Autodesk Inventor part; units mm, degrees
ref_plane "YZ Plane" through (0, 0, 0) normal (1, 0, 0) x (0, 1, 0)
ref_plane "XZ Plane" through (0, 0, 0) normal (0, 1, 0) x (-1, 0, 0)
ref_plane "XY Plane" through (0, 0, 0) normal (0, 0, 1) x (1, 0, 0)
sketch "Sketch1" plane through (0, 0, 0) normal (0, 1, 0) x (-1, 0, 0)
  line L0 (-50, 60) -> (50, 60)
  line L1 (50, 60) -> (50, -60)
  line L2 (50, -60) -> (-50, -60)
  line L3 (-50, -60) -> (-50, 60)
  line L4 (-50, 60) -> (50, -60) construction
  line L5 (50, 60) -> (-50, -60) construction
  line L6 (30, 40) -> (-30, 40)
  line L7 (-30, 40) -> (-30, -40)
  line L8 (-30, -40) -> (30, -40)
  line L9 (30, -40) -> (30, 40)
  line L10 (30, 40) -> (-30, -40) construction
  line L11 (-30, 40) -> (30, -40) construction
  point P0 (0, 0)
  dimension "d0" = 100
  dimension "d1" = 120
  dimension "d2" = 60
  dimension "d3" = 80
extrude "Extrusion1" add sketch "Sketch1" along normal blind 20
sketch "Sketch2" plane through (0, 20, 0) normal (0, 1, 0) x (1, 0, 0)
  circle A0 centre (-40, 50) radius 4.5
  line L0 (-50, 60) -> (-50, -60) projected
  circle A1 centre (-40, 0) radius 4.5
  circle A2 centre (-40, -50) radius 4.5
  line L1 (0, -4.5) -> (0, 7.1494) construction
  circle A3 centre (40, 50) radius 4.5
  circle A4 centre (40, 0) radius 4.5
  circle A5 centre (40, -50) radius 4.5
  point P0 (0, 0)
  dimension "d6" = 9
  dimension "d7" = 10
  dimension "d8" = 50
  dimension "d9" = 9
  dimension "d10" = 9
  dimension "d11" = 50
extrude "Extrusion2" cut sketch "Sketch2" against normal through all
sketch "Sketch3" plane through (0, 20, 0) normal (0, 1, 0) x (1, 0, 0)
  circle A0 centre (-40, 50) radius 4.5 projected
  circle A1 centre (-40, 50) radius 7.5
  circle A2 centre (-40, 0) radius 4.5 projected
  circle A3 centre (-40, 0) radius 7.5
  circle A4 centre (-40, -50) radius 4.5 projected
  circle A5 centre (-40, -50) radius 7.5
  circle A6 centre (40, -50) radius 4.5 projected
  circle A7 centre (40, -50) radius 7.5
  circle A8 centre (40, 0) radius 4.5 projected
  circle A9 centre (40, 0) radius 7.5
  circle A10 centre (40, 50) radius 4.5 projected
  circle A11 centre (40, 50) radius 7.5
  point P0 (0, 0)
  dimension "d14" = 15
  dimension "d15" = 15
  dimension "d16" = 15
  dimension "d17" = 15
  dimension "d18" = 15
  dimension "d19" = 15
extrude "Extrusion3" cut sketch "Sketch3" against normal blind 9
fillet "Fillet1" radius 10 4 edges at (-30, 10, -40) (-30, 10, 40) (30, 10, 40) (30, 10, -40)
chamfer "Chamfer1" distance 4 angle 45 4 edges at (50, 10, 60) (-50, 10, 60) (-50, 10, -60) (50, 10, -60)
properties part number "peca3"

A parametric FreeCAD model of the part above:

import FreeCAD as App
import Part
import Sketcher
from FreeCAD import Vector
Q = App.Units.Quantity


def edges_at(feature, points):
    """Names of the edges that pass closest to the given points."""
    edges = feature.Shape.Edges
    near = lambda p: min(range(len(edges)), key=lambda i: edges[i].distToShape(Part.Vertex(*p))[0])
    return sorted({f"Edge{near(p) + 1}" for p in points})


def add_polygon(sketch, points):
    """Adds a closed chain of lines whose ends are joined by coincident constraints."""
    first, n = sketch.GeometryCount, len(points)
    for a, b in zip(points, points[1:] + points[:1]):
        sketch.addGeometry(Part.LineSegment(App.Vector(*a, 0), App.Vector(*b, 0)), False)
    for i in range(n):
        sketch.addConstraint(Sketcher.Constraint("Coincident", first + i, 2, first + (i + 1) % n, 1))

doc = App.newDocument("Part")
params = doc.addObject("Spreadsheet::Sheet", "Params")
for row, (alias, value) in enumerate([
    ("sketch1_width", "100 mm"),
    ("sketch1_width2", "60 mm"),
    ("sketch1_height", "120 mm"),
    ("sketch1_height2", "80 mm"),
    ("pad1_length", "20 mm"),
    ("sketch2_diameter", "9 mm"),
    ("sketch3_diameter", "15 mm"),
    ("sketch3_diameter2", "9 mm"),
    ("pocket2_length", "9 mm"),
    ("fillet_radius", "10 mm"),
    ("chamfer_size", "4 mm"),
], start=1):
    params.set(f"A{row}", alias)
    params.set(f"B{row}", "=" + value)
    params.setAlias(f"B{row}", alias)

body = doc.addObject("PartDesign::Body", "Body")

sketch1 = body.newObject("Sketcher::SketchObject", "Sketch")
sketch1.AttachmentSupport = (doc.getObject("XZ_Plane"), [""])
sketch1.MapMode = "FlatFace"
add_polygon(sketch1, [(-50, 60), (50, 60), (50, -60), (-50, -60)])
add_polygon(sketch1, [(30, 40), (-30, 40), (-30, -40), (30, -40)])
sketch1.addConstraint(Sketcher.Constraint("Horizontal", 0))
sketch1.addConstraint(Sketcher.Constraint("Vertical", 1))
sketch1.addConstraint(Sketcher.Constraint("Horizontal", 2))
sketch1.addConstraint(Sketcher.Constraint("Vertical", 3))
sketch1.addConstraint(Sketcher.Constraint("Horizontal", 4))
sketch1.addConstraint(Sketcher.Constraint("Vertical", 5))
sketch1.addConstraint(Sketcher.Constraint("Horizontal", 6))
sketch1.addConstraint(Sketcher.Constraint("Vertical", 7))
sketch1.addConstraint(Sketcher.Constraint("Symmetric", 0, 2, 2, 2, -1, 1))
sketch1.addConstraint(Sketcher.Constraint("Symmetric", 4, 2, 6, 2, -1, 1))
sketch1.addConstraint(Sketcher.Constraint("DistanceX", 0, 1, 0, 2, Q("100 mm")))
sketch1.addConstraint(Sketcher.Constraint("DistanceX", 4, 2, 4, 1, Q("60 mm")))
sketch1.addConstraint(Sketcher.Constraint("DistanceY", 1, 2, 1, 1, Q("120 mm")))
sketch1.addConstraint(Sketcher.Constraint("DistanceY", 5, 2, 5, 1, Q("80 mm")))
sketch1.setExpression("Constraints[18]", "Params.sketch1_width")
sketch1.setExpression("Constraints[19]", "Params.sketch1_width2")
sketch1.setExpression("Constraints[20]", "Params.sketch1_height")
sketch1.setExpression("Constraints[21]", "Params.sketch1_height2")
pad1 = body.newObject("PartDesign::Pad", "Pad")
pad1.Profile = sketch1
pad1.setExpression("Length", "Params.pad1_length")
pad1.Reversed = True

sketch2 = body.newObject("Sketcher::SketchObject", "Sketch001")
sketch2.AttachmentSupport = (doc.getObject("XZ_Plane"), [""])
sketch2.MapMode = "FlatFace"
sketch2.AttachmentOffset = App.Placement(Vector(0, 0, -20), App.Rotation())
sketch2.addGeometry(Part.Circle(Vector(-40, -50, 0), Vector(0, 0, 1), 4.5), False)
sketch2.addGeometry(Part.Circle(Vector(-40, 0, 0), Vector(0, 0, 1), 4.5), False)
sketch2.addGeometry(Part.Circle(Vector(-40, 50, 0), Vector(0, 0, 1), 4.5), False)
sketch2.addGeometry(Part.Circle(Vector(40, -50, 0), Vector(0, 0, 1), 4.5), False)
sketch2.addGeometry(Part.Circle(Vector(40, 0, 0), Vector(0, 0, 1), 4.5), False)
sketch2.addGeometry(Part.Circle(Vector(40, 50, 0), Vector(0, 0, 1), 4.5), False)
sketch2.addConstraint(Sketcher.Constraint("Equal", 0, 1))
sketch2.addConstraint(Sketcher.Constraint("Equal", 1, 2))
sketch2.addConstraint(Sketcher.Constraint("Equal", 2, 3))
sketch2.addConstraint(Sketcher.Constraint("Equal", 3, 4))
sketch2.addConstraint(Sketcher.Constraint("Equal", 4, 5))
sketch2.addConstraint(Sketcher.Constraint("Symmetric", 2, 3, 3, 3, -1, 1))
sketch2.addConstraint(Sketcher.Constraint("Symmetric", 1, 3, 4, 3, -1, 1))
sketch2.addConstraint(Sketcher.Constraint("Symmetric", 0, 3, 5, 3, -1, 1))
sketch2.addConstraint(Sketcher.Constraint("Symmetric", 0, 3, 3, 3, -2))
sketch2.addConstraint(Sketcher.Constraint("PointOnObject", 1, 3, -1))
sketch2.addConstraint(Sketcher.Constraint("Vertical", 0, 3, 1, 3))
sketch2.addConstraint(Sketcher.Constraint("Diameter", 0, Q("9 mm")))
sketch2.addConstraint(Sketcher.Constraint("DistanceY", 0, 3, -1, 1, Q("50 mm")))
sketch2.addConstraint(Sketcher.Constraint("DistanceX", 0, 3, -1, 1, Q("40 mm")))
sketch2.setExpression("Constraints[11]", "Params.sketch2_diameter")
pocket1 = body.newObject("PartDesign::Pocket", "Pocket")
pocket1.Profile = sketch2
pocket1.Type = "ThroughAll"
pocket1.Reversed = True

sketch3 = body.newObject("Sketcher::SketchObject", "Sketch002")
sketch3.AttachmentSupport = (doc.getObject("XZ_Plane"), [""])
sketch3.MapMode = "FlatFace"
sketch3.AttachmentOffset = App.Placement(Vector(0, 0, -20), App.Rotation())
sketch3.addGeometry(Part.Circle(Vector(-40, -50, 0), Vector(0, 0, 1), 7.5), False)
sketch3.addGeometry(Part.Circle(Vector(-40, -50, 0), Vector(0, 0, 1), 4.5), False)
sketch3.addGeometry(Part.Circle(Vector(-40, 0, 0), Vector(0, 0, 1), 7.5), False)
sketch3.addGeometry(Part.Circle(Vector(-40, 0, 0), Vector(0, 0, 1), 4.5), False)
sketch3.addGeometry(Part.Circle(Vector(-40, 50, 0), Vector(0, 0, 1), 7.5), False)
sketch3.addGeometry(Part.Circle(Vector(-40, 50, 0), Vector(0, 0, 1), 4.5), False)
sketch3.addGeometry(Part.Circle(Vector(40, 50, 0), Vector(0, 0, 1), 7.5), False)
sketch3.addGeometry(Part.Circle(Vector(40, 50, 0), Vector(0, 0, 1), 4.5), False)
sketch3.addGeometry(Part.Circle(Vector(40, 0, 0), Vector(0, 0, 1), 7.5), False)
sketch3.addGeometry(Part.Circle(Vector(40, 0, 0), Vector(0, 0, 1), 4.5), False)
sketch3.addGeometry(Part.Circle(Vector(40, -50, 0), Vector(0, 0, 1), 7.5), False)
sketch3.addGeometry(Part.Circle(Vector(40, -50, 0), Vector(0, 0, 1), 4.5), False)
sketch3.addConstraint(Sketcher.Constraint("Coincident", 1, 3, 0, 3))
sketch3.addConstraint(Sketcher.Constraint("Coincident", 3, 3, 2, 3))
sketch3.addConstraint(Sketcher.Constraint("Coincident", 5, 3, 4, 3))
sketch3.addConstraint(Sketcher.Constraint("Coincident", 7, 3, 6, 3))
sketch3.addConstraint(Sketcher.Constraint("Coincident", 9, 3, 8, 3))
sketch3.addConstraint(Sketcher.Constraint("Coincident", 11, 3, 10, 3))
sketch3.addConstraint(Sketcher.Constraint("Equal", 0, 2))
sketch3.addConstraint(Sketcher.Constraint("Equal", 1, 3))
sketch3.addConstraint(Sketcher.Constraint("Equal", 2, 4))
sketch3.addConstraint(Sketcher.Constraint("Equal", 3, 5))
sketch3.addConstraint(Sketcher.Constraint("Equal", 4, 6))
sketch3.addConstraint(Sketcher.Constraint("Equal", 5, 7))
sketch3.addConstraint(Sketcher.Constraint("Equal", 6, 8))
sketch3.addConstraint(Sketcher.Constraint("Equal", 7, 9))
sketch3.addConstraint(Sketcher.Constraint("Equal", 8, 10))
sketch3.addConstraint(Sketcher.Constraint("Equal", 9, 11))
sketch3.addConstraint(Sketcher.Constraint("Symmetric", 0, 3, 6, 3, -1, 1))
sketch3.addConstraint(Sketcher.Constraint("Symmetric", 2, 3, 8, 3, -1, 1))
sketch3.addConstraint(Sketcher.Constraint("Symmetric", 4, 3, 10, 3, -1, 1))
sketch3.addConstraint(Sketcher.Constraint("Symmetric", 4, 3, 6, 3, -2))
sketch3.addConstraint(Sketcher.Constraint("PointOnObject", 2, 3, -1))
sketch3.addConstraint(Sketcher.Constraint("Vertical", 1, 3, 2, 3))
sketch3.addConstraint(Sketcher.Constraint("Diameter", 0, Q("15 mm")))
sketch3.addConstraint(Sketcher.Constraint("Diameter", 1, Q("9 mm")))
sketch3.addConstraint(Sketcher.Constraint("DistanceX", 0, 3, -1, 1, Q("40 mm")))
sketch3.addConstraint(Sketcher.Constraint("DistanceY", 0, 3, -1, 1, Q("50 mm")))
sketch3.setExpression("Constraints[22]", "Params.sketch3_diameter")
sketch3.setExpression("Constraints[23]", "Params.sketch3_diameter2")
pocket2 = body.newObject("PartDesign::Pocket", "Pocket001")
pocket2.Profile = sketch3
pocket2.setExpression("Length", "Params.pocket2_length")
pocket2.Reversed = True
doc.recompute()

fillet = body.newObject("PartDesign::Fillet", "Fillet")
fillet.Base = (pocket2, edges_at(pocket2, [
    (-30, 10, -40),
    (-30, 10, 40),
    (30, 10, 40),
    (30, 10, -40),
]))
fillet.setExpression("Radius", "Params.fillet_radius")
doc.recompute()

chamfer = body.newObject("PartDesign::Chamfer", "Chamfer")
chamfer.Base = (fillet, edges_at(fillet, [
    (50, 10, 60),
    (-50, 10, 60),
    (-50, 10, -60),
    (50, 10, -60),
]))
chamfer.setExpression("Size", "Params.chamfer_size")

doc.recompute()
